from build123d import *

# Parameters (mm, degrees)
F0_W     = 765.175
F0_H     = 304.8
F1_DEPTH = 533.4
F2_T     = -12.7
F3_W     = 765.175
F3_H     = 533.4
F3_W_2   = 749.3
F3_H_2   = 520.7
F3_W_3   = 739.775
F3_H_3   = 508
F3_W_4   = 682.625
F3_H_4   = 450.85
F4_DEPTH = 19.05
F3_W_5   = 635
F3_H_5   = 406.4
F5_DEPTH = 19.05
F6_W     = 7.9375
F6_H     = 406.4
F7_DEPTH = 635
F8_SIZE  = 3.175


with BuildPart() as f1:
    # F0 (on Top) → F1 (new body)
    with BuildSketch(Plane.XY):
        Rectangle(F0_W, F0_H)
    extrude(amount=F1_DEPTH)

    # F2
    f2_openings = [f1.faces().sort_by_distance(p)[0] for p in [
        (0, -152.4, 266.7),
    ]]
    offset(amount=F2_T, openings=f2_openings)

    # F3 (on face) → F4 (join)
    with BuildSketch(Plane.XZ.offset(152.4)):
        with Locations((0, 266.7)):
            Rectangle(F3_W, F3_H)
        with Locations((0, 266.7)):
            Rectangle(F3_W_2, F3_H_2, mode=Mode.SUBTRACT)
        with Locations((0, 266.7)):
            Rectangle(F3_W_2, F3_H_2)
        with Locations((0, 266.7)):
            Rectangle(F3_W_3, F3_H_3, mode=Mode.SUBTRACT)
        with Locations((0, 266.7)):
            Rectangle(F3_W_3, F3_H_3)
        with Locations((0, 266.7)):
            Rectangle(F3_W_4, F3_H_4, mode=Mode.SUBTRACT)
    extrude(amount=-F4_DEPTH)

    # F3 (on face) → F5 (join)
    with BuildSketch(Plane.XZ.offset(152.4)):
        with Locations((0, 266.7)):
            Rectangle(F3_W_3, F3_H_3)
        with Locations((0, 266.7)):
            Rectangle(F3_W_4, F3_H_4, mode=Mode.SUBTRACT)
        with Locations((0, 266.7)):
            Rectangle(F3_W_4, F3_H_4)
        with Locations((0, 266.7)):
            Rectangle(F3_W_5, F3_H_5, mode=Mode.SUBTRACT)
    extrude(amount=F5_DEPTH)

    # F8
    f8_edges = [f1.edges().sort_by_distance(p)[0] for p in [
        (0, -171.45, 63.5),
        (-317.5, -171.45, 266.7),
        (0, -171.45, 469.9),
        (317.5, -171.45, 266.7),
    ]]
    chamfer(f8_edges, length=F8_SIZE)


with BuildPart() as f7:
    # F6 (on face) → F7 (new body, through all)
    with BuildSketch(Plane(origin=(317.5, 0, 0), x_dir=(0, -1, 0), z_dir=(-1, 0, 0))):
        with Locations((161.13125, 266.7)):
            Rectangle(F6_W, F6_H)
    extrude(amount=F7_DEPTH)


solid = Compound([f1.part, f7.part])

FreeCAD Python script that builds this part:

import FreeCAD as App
import Part
import Sketcher
from FreeCAD import Vector
Q = App.Units.Quantity


def edges_at(feature, points):
    """Names of the edges that pass closest to the given points."""
    edges = feature.Shape.Edges
    near = lambda p: min(range(len(edges)), key=lambda i: edges[i].distToShape(Part.Vertex(*p))[0])
    return sorted({f"Edge{near(p) + 1}" for p in points})


def faces_at(feature, points):
    """Names of the faces that lie closest to the given points."""
    faces = feature.Shape.Faces
    near = lambda p: min(range(len(faces)), key=lambda i: faces[i].distToShape(Part.Vertex(*p))[0])
    return sorted({f"Face{near(p) + 1}" for p in points})

doc = App.newDocument("Part")
body = doc.addObject("PartDesign::Body", "Body")

# Sketch on XY plane
sketch1 = body.newObject("Sketcher::SketchObject", "Sketch")
sketch1.AttachmentSupport = (doc.getObject("XY_Plane"), [""])
sketch1.MapMode = "FlatFace"
sketch1.addGeometry(Part.LineSegment(Vector(-382.5875, 152.4, 0), Vector(-382.5875, -152.4, 0)), False)
sketch1.addGeometry(Part.LineSegment(Vector(-382.5875, -152.4, 0), Vector(382.5875, -152.4, 0)), False)
sketch1.addGeometry(Part.LineSegment(Vector(382.5875, -152.4, 0), Vector(382.5875, 152.4, 0)), False)
sketch1.addGeometry(Part.LineSegment(Vector(382.5875, 152.4, 0), Vector(-382.5875, 152.4, 0)), False)
sketch1.addConstraint(Sketcher.Constraint("Coincident", 0, 2, 1, 1))
sketch1.addConstraint(Sketcher.Constraint("Coincident", 1, 2, 2, 1))
sketch1.addConstraint(Sketcher.Constraint("Coincident", 2, 2, 3, 1))
sketch1.addConstraint(Sketcher.Constraint("Coincident", 3, 2, 0, 1))
sketch1.addConstraint(Sketcher.Constraint("Vertical", 0))
sketch1.addConstraint(Sketcher.Constraint("Horizontal", 1))
sketch1.addConstraint(Sketcher.Constraint("Vertical", 2))
sketch1.addConstraint(Sketcher.Constraint("Horizontal", 3))
sketch1.addConstraint(Sketcher.Constraint("Symmetric", 0, 2, 2, 2, -1, 1))
sketch1.addConstraint(Sketcher.Constraint("DistanceY", 0, 2, 0, 1, Q("12 in")))
sketch1.addConstraint(Sketcher.Constraint("DistanceX", 1, 1, 1, 2, Q("30.125 in")))
pad1 = body.newObject("PartDesign::Pad", "Pad")
pad1.Profile = sketch1
pad1.Length = Q("21 in")
doc.recompute()

thickness = body.newObject("PartDesign::Thickness", "Thickness")
thickness.Base = (pad1, faces_at(pad1, [(0, -152.4, 266.7)]))
thickness.Value = Q("0.5 in")
thickness.Reversed = True
thickness.Join = "Arc"

# Sketch on XZ plane
sketch2 = body.newObject("Sketcher::SketchObject", "Sketch001")
sketch2.AttachmentSupport = (doc.getObject("XZ_Plane"), [""])
sketch2.MapMode = "FlatFace"
sketch2.AttachmentOffset = App.Placement(Vector(0, 0, 6 * 25.4), App.Rotation())
sketch2.addGeometry(Part.LineSegment(Vector(-382.5875, 533.4, 0), Vector(-382.5875, 0, 0)), False)
sketch2.addGeometry(Part.LineSegment(Vector(-382.5875, 0, 0), Vector(382.5875, 0, 0)), False)
sketch2.addGeometry(Part.LineSegment(Vector(382.5875, 0, 0), Vector(382.5875, 533.4, 0)), False)
sketch2.addGeometry(Part.LineSegment(Vector(382.5875, 533.4, 0), Vector(-382.5875, 533.4, 0)), False)
sketch2.addGeometry(Part.LineSegment(Vector(341.3125, 41.275, 0), Vector(-341.3125, 41.275, 0)), False)
sketch2.addGeometry(Part.LineSegment(Vector(-341.3125, 41.275, 0), Vector(-341.3125, 492.125, 0)), False)
sketch2.addGeometry(Part.LineSegment(Vector(-341.3125, 492.125, 0), Vector(341.3125, 492.125, 0)), False)
sketch2.addGeometry(Part.LineSegment(Vector(341.3125, 492.125, 0), Vector(341.3125, 41.275, 0)), False)
sketch2.addConstraint(Sketcher.Constraint("Coincident", 0, 2, 1, 1))
sketch2.addConstraint(Sketcher.Constraint("Coincident", 1, 2, 2, 1))
sketch2.addConstraint(Sketcher.Constraint("Coincident", 2, 2, 3, 1))
sketch2.addConstraint(Sketcher.Constraint("Coincident", 3, 2, 0, 1))
sketch2.addConstraint(Sketcher.Constraint("Coincident", 4, 2, 5, 1))
sketch2.addConstraint(Sketcher.Constraint("Coincident", 5, 2, 6, 1))
sketch2.addConstraint(Sketcher.Constraint("Coincident", 6, 2, 7, 1))
sketch2.addConstraint(Sketcher.Constraint("Coincident", 7, 2, 4, 1))
sketch2.addConstraint(Sketcher.Constraint("Vertical", 0))
sketch2.addConstraint(Sketcher.Constraint("Horizontal", 1))
sketch2.addConstraint(Sketcher.Constraint("Vertical", 2))
sketch2.addConstraint(Sketcher.Constraint("Horizontal", 3))
sketch2.addConstraint(Sketcher.Constraint("Horizontal", 4))
sketch2.addConstraint(Sketcher.Constraint("Vertical", 5))
sketch2.addConstraint(Sketcher.Constraint("Horizontal", 6))
sketch2.addConstraint(Sketcher.Constraint("Vertical", 7))
sketch2.addConstraint(Sketcher.Constraint("Symmetric", 0, 2, 1, 2, -1, 1))
sketch2.addConstraint(Sketcher.Constraint("DistanceY", 0, 2, 0, 1, Q("21 in")))
sketch2.addConstraint(Sketcher.Constraint("DistanceY", 5, 1, 5, 2, Q("17.75 in")))
sketch2.addConstraint(Sketcher.Constraint("DistanceX", 4, 2, 1, 2, Q("28.5 in")))
sketch2.addConstraint(Sketcher.Constraint("DistanceX", 3, 2, 6, 2, Q("28.5 in")))
sketch2.addConstraint(Sketcher.Constraint("DistanceX", 1, 1, 1, 2, Q("30.125 in")))
sketch2.addConstraint(Sketcher.Constraint("DistanceY", -1, 1, 4, 2, Q("1.625 in")))
pad2 = body.newObject("PartDesign::Pad", "Pad001")
pad2.Profile = sketch2
pad2.Length = Q("0.75 in")
pad2.Reversed = True

# Sketch on XZ plane
sketch3 = body.newObject("Sketcher::SketchObject", "Sketch002")
sketch3.AttachmentSupport = (doc.getObject("XZ_Plane"), [""])
sketch3.MapMode = "FlatFace"
sketch3.AttachmentOffset = App.Placement(Vector(0, 0, 6 * 25.4), App.Rotation())
sketch3.addGeometry(Part.LineSegment(Vector(-369.8875, 520.7, 0), Vector(-369.8875, 12.7, 0)), False)
sketch3.addGeometry(Part.LineSegment(Vector(-369.8875, 12.7, 0), Vector(369.8875, 12.7, 0)), False)
sketch3.addGeometry(Part.LineSegment(Vector(369.8875, 12.7, 0), Vector(369.8875, 520.7, 0)), False)
sketch3.addGeometry(Part.LineSegment(Vector(369.8875, 520.7, 0), Vector(-369.8875, 520.7, 0)), False)
sketch3.addGeometry(Part.LineSegment(Vector(317.5, 63.5, 0), Vector(-317.5, 63.5, 0)), False)
sketch3.addGeometry(Part.LineSegment(Vector(-317.5, 63.5, 0), Vector(-317.5, 469.9, 0)), False)
sketch3.addGeometry(Part.LineSegment(Vector(-317.5, 469.9, 0), Vector(317.5, 469.9, 0)), False)
sketch3.addGeometry(Part.LineSegment(Vector(317.5, 469.9, 0), Vector(317.5, 63.5, 0)), False)
sketch3.addConstraint(Sketcher.Constraint("Coincident", 0, 2, 1, 1))
sketch3.addConstraint(Sketcher.Constraint("Coincident", 1, 2, 2, 1))
sketch3.addConstraint(Sketcher.Constraint("Coincident", 2, 2, 3, 1))
sketch3.addConstraint(Sketcher.Constraint("Coincident", 3, 2, 0, 1))
sketch3.addConstraint(Sketcher.Constraint("Coincident", 4, 2, 5, 1))
sketch3.addConstraint(Sketcher.Constraint("Coincident", 5, 2, 6, 1))
sketch3.addConstraint(Sketcher.Constraint("Coincident", 6, 2, 7, 1))
sketch3.addConstraint(Sketcher.Constraint("Coincident", 7, 2, 4, 1))
sketch3.addConstraint(Sketcher.Constraint("Vertical", 0))
sketch3.addConstraint(Sketcher.Constraint("Horizontal", 1))
sketch3.addConstraint(Sketcher.Constraint("Vertical", 2))
sketch3.addConstraint(Sketcher.Constraint("Horizontal", 3))
sketch3.addConstraint(Sketcher.Constraint("Horizontal", 4))
sketch3.addConstraint(Sketcher.Constraint("Vertical", 5))
sketch3.addConstraint(Sketcher.Constraint("Horizontal", 6))
sketch3.addConstraint(Sketcher.Constraint("Vertical", 7))
sketch3.addConstraint(Sketcher.Constraint("DistanceX", 4, 2, 4, 1, Q("25 in")))
sketch3.addConstraint(Sketcher.Constraint("DistanceY", 0, 2, 0, 1, Q("20 in")))
sketch3.addConstraint(Sketcher.Constraint("DistanceY", 5, 1, 5, 2, Q("16 in")))
sketch3.addConstraint(Sketcher.Constraint("DistanceY", 0, 2, 4, 2, Q("2 in")))
sketch3.addConstraint(Sketcher.Constraint("DistanceY", -1, 1, 0, 2, Q("0.5 in")))
sketch3.addConstraint(Sketcher.Constraint("DistanceX", 4, 2, -1, 1, Q("12.5 in")))
sketch3.addConstraint(Sketcher.Constraint("DistanceX", 1, 1, 1, 2, Q("29.125 in")))
sketch3.addConstraint(Sketcher.Constraint("DistanceX", 0, 2, -1, 1, Q("14.5625 in")))
pad3 = body.newObject("PartDesign::Pad", "Pad002")
pad3.Profile = sketch3
pad3.Length = Q("0.75 in")
doc.recompute()

chamfer = body.newObject("PartDesign::Chamfer", "Chamfer")
chamfer.Base = (pad3, edges_at(pad3, [
    (0, -171.45, 63.5),
    (-317.5, -171.45, 266.7),
    (0, -171.45, 469.9),
    (317.5, -171.45, 266.7),
]))
chamfer.Size = Q("0.125 in")
body2 = doc.addObject("PartDesign::Body", "Body001")

# Sketch on YZ plane
sketch4 = body2.newObject("Sketcher::SketchObject", "Sketch003")
sketch4.AttachmentSupport = (doc.getObject("YZ_Plane001"), [""])
sketch4.MapMode = "FlatFace"
sketch4.AttachmentOffset = App.Placement(Vector(0, 0, 12.5 * 25.4), App.Rotation())
sketch4.addGeometry(Part.LineSegment(Vector(-157.1625, 469.9, 0), Vector(-157.1625, 63.5, 0)), False)
sketch4.addGeometry(Part.LineSegment(Vector(-157.1625, 63.5, 0), Vector(-165.1, 63.5, 0)), False)
sketch4.addGeometry(Part.LineSegment(Vector(-165.1, 63.5, 0), Vector(-165.1, 469.9, 0)), False)
sketch4.addGeometry(Part.LineSegment(Vector(-165.1, 469.9, 0), Vector(-157.1625, 469.9, 0)), False)
sketch4.addConstraint(Sketcher.Constraint("Coincident", 0, 2, 1, 1))
sketch4.addConstraint(Sketcher.Constraint("Coincident", 1, 2, 2, 1))
sketch4.addConstraint(Sketcher.Constraint("Coincident", 2, 2, 3, 1))
sketch4.addConstraint(Sketcher.Constraint("Coincident", 3, 2, 0, 1))
sketch4.addConstraint(Sketcher.Constraint("Vertical", 0))
sketch4.addConstraint(Sketcher.Constraint("Horizontal", 1))
sketch4.addConstraint(Sketcher.Constraint("Vertical", 2))
sketch4.addConstraint(Sketcher.Constraint("Horizontal", 3))
sketch4.addConstraint(Sketcher.Constraint("DistanceY", 0, 2, 0, 1, Q("16 in")))
sketch4.addConstraint(Sketcher.Constraint("DistanceY", -1, 1, 0, 2, Q("2.5 in")))
sketch4.addConstraint(Sketcher.Constraint("DistanceX", 1, 2, -1, 1, Q("6.5 in")))
sketch4.addConstraint(Sketcher.Constraint("DistanceX", 1, 2, 1, 1, Q("0.3125 in")))
pad4 = body2.newObject("PartDesign::Pad", "Pad003")
pad4.Profile = sketch4
pad4.Length = Q("25 in")
pad4.Reversed = True

doc.recompute()
